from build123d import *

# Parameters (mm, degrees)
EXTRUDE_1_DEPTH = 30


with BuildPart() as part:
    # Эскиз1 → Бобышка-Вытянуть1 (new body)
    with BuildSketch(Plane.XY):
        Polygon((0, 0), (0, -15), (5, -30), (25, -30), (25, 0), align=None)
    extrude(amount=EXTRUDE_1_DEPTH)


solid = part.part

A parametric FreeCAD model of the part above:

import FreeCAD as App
import Part
import Sketcher
from FreeCAD import Vector
Q = App.Units.Quantity


def add_polygon(sketch, points):
    """Adds a closed chain of lines whose ends are joined by coincident constraints."""
    first, n = sketch.GeometryCount, len(points)
    for a, b in zip(points, points[1:] + points[:1]):
        sketch.addGeometry(Part.LineSegment(App.Vector(*a, 0), App.Vector(*b, 0)), False)
    for i in range(n):
        sketch.addConstraint(Sketcher.Constraint("Coincident", first + i, 2, first + (i + 1) % n, 1))

doc = App.newDocument("Part")
body = doc.addObject("PartDesign::Body", "Body")

sketch1 = body.newObject("Sketcher::SketchObject", "Sketch")
sketch1.AttachmentSupport = (doc.getObject("XY_Plane"), [""])
sketch1.MapMode = "FlatFace"
add_polygon(sketch1, [(0, 0), (0, -15), (5, -30), (25, -30), (25, 0)])
sketch1.addConstraint([
    Sketcher.Constraint("Vertical", 0),
    Sketcher.Constraint("Horizontal", 2),
    Sketcher.Constraint("Vertical", 3),
    Sketcher.Constraint("Horizontal", 4),
    Sketcher.Constraint("Coincident", 4, 2, -1, 1),
    Sketcher.Constraint("DistanceX", 2, 1, 2, 2, Q("20 mm")),
    Sketcher.Constraint("DistanceX", 4, 2, 4, 1, Q("25 mm")),
    Sketcher.Constraint("DistanceY", 0, 2, 0, 1, Q("15 mm")),
    Sketcher.Constraint("DistanceY", 3, 1, 3, 2, Q("30 mm")),
])
pad1 = body.newObject("PartDesign::Pad", "Pad")
pad1.Profile = sketch1
pad1.Length = 30

doc.recompute()
